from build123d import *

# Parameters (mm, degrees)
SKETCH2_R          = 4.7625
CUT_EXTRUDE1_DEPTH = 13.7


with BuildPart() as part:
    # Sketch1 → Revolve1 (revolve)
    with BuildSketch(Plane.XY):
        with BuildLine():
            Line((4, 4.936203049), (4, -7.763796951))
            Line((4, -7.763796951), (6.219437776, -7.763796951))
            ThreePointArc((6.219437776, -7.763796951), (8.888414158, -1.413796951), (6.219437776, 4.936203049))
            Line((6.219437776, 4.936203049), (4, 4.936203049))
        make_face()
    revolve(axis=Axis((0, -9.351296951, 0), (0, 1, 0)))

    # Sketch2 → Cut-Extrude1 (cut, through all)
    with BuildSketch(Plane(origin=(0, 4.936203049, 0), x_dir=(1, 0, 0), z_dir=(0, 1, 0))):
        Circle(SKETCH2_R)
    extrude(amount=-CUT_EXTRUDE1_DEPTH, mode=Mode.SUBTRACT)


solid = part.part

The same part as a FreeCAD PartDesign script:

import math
import FreeCAD as App
import Part
import Sketcher
from FreeCAD import Vector
Q = App.Units.Quantity

doc = App.newDocument("Part")
params = doc.addObject("Spreadsheet::Sheet", "Params")
for row, (alias, value) in enumerate([
    ("sketch1_height", "0.5 in"),
    ("revolution_angle", "360 deg"),
    ("sketch2_diameter", "0.375 in"),
], start=1):
    params.set(f"A{row}", alias)
    params.set(f"B{row}", "=" + value)
    params.setAlias(f"B{row}", alias)

body = doc.addObject("PartDesign::Body", "Body")

# Sketch on XY plane
sketch1 = doc.addObject("Sketcher::SketchObject", "Sketch")
body.addObject(sketch1)
sketch1.AttachmentSupport = (doc.XY_Plane, [""])
sketch1.MapMode = "FlatFace"
sketch1.addGeometry(Part.LineSegment(Vector(4, 4.9, 0), Vector(4, -7.8, 0)), False)
sketch1.addGeometry(Part.LineSegment(Vector(4, -7.8, 0), Vector(6.2, -7.8, 0)), False)
sketch1.addGeometry(Part.ArcOfCircle(Part.Circle(Vector(0, -1.4, 0), Vector(0, 0, 1), 8.9), math.radians(-46), math.radians(46)), False)
sketch1.addGeometry(Part.LineSegment(Vector(6.2, 4.9, 0), Vector(4, 4.9, 0)), False)
sketch1.addConstraint(Sketcher.Constraint("Coincident", 0, 2, 1, 1))
sketch1.addConstraint(Sketcher.Constraint("Coincident", 1, 2, 2, 1))
sketch1.addConstraint(Sketcher.Constraint("Coincident", 2, 2, 3, 1))
sketch1.addConstraint(Sketcher.Constraint("Coincident", 3, 2, 0, 1))
sketch1.addConstraint(Sketcher.Constraint("Vertical", 0))
sketch1.addConstraint(Sketcher.Constraint("Horizontal", 1))
sketch1.addConstraint(Sketcher.Constraint("Horizontal", 3))
sketch1.addConstraint(Sketcher.Constraint("PointOnObject", 2, 3, -2))
sketch1.addConstraint(Sketcher.Constraint("Vertical", 1, 2, 2, 2))
sketch1.addConstraint(Sketcher.Constraint("DistanceY", 0, 2, 0, 1, Q("0.5 in")))
sketch1.addConstraint(Sketcher.Constraint("Radius", 2, 8.888414))
sketch1.addConstraint(Sketcher.Constraint("DistanceX", -1, 1, 0, 2, 4.0))
sketch1.addConstraint(Sketcher.Constraint("DistanceY", 2, 3, -1, 1, 1.413797))
sketch1.setExpression("Constraints[9]", "Params.sketch1_height")
revolution = doc.addObject("PartDesign::Revolution", "Revolution")
body.addObject(revolution)
revolution.Profile = sketch1
revolution.ReferenceAxis = (sketch1, ["V_Axis"])
revolution.setExpression("Angle", "Params.revolution_angle")

# Sketch on XZ plane
sketch2 = doc.addObject("Sketcher::SketchObject", "Sketch001")
body.addObject(sketch2)
sketch2.AttachmentSupport = (doc.XZ_Plane, [""])
sketch2.MapMode = "FlatFace"
sketch2.AttachmentOffset = App.Placement(Vector(0, 0, -4.936203), App.Rotation())
sketch2.addGeometry(Part.Circle(Vector(0, 0, 0), Vector(0, 0, 1), 4.8), False)
sketch2.addConstraint(Sketcher.Constraint("Coincident", 0, 3, -1, 1))
sketch2.addConstraint(Sketcher.Constraint("Diameter", 0, Q("0.375 in")))
sketch2.setExpression("Constraints[1]", "Params.sketch2_diameter")
pocket1 = doc.addObject("PartDesign::Pocket", "Pocket")
body.addObject(pocket1)
pocket1.Profile = sketch2
pocket1.Type = "ThroughAll"
pocket1.Reversed = True

doc.recompute()
